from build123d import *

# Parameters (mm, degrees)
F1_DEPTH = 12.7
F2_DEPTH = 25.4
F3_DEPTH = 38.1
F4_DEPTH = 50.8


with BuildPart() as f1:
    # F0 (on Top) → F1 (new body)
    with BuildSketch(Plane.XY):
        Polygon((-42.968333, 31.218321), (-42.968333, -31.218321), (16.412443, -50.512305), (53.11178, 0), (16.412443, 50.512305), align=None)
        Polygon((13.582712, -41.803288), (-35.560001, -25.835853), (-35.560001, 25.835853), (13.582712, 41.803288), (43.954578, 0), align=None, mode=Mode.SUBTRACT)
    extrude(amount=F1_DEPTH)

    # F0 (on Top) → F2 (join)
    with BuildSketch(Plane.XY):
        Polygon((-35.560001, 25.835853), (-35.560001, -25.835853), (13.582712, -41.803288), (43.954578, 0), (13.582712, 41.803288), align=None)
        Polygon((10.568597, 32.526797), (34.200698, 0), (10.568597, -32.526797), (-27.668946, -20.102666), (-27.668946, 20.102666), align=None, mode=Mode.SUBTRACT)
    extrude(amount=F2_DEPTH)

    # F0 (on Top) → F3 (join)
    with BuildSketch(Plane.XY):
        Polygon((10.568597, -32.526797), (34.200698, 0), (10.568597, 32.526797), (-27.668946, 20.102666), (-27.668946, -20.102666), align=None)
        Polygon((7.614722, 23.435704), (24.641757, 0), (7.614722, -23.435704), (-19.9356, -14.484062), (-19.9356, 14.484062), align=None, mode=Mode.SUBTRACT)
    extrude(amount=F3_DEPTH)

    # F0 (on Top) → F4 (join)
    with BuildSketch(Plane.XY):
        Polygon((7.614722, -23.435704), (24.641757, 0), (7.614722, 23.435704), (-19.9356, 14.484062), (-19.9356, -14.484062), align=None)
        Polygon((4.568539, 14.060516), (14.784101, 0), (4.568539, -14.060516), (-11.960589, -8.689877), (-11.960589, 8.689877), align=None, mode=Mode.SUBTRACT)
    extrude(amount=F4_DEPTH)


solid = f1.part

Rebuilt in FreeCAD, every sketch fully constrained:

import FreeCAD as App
import Part
import Sketcher

V = App.Vector
Q = App.Units.Quantity

doc = App.newDocument("Part")
params = doc.addObject("Spreadsheet::Sheet", "Params")
for row, (alias, value) in enumerate([
    ("pad1_length", "0.5 in"),
    ("pad2_length", "1 in"),
    ("pad3_length", "1.5 in"),
    ("pad4_length", "2 in"),
], start=1):
    params.set(f"A{row}", alias)
    params.set(f"B{row}", "=" + value)
    params.setAlias(f"B{row}", alias)

body = doc.addObject("PartDesign::Body", "Body")

# Sketch on XY plane
sketch1 = doc.addObject("Sketcher::SketchObject", "Sketch")
body.addObject(sketch1)
sketch1.AttachmentSupport = (doc.XY_Plane, [""])
sketch1.MapMode = "FlatFace"
sketch1.addGeometry([
    Part.LineSegment(V(-42.968333, 31.218321, 0), V(-42.968333, -31.218321, 0)),  # 0
    Part.LineSegment(V(-42.968333, -31.218321, 0), V(16.412443, -50.512305, 0)),  # 1
    Part.LineSegment(V(16.412443, -50.512305, 0), V(53.11178, 0, 0)),  # 2
    Part.LineSegment(V(53.11178, 0, 0), V(16.412443, 50.512305, 0)),  # 3
    Part.LineSegment(V(16.412443, 50.512305, 0), V(-42.968333, 31.218321, 0)),  # 4
    Part.LineSegment(V(43.954578, 0, 0), V(13.582712, -41.803288, 0)),  # 5
    Part.LineSegment(V(13.582712, -41.803288, 0), V(-35.560001, -25.835853, 0)),  # 6
    Part.LineSegment(V(-35.560001, -25.835853, 0), V(-35.560001, 25.835853, 0)),  # 7
    Part.LineSegment(V(-35.560001, 25.835853, 0), V(13.582712, 41.803288, 0)),  # 8
    Part.LineSegment(V(13.582712, 41.803288, 0), V(43.954578, 0, 0)),  # 9
], False)
sketch1.addConstraint([
    Sketcher.Constraint("Coincident", 0, 2, 1, 1),
    Sketcher.Constraint("Coincident", 1, 2, 2, 1),
    Sketcher.Constraint("Coincident", 2, 2, 3, 1),
    Sketcher.Constraint("Coincident", 3, 2, 4, 1),
    Sketcher.Constraint("Coincident", 4, 2, 0, 1),
    Sketcher.Constraint("Coincident", 5, 2, 6, 1),
    Sketcher.Constraint("Coincident", 6, 2, 7, 1),
    Sketcher.Constraint("Coincident", 7, 2, 8, 1),
    Sketcher.Constraint("Coincident", 8, 2, 9, 1),
    Sketcher.Constraint("Coincident", 9, 2, 5, 1),
    Sketcher.Constraint("Vertical", 0),
    Sketcher.Constraint("Vertical", 7),
    Sketcher.Constraint("Symmetric", 1, 2, 3, 2, -1),
    Sketcher.Constraint("Symmetric", 5, 2, 8, 2, -1),
    Sketcher.Constraint("PointOnObject", 2, 2, -1),
    Sketcher.Constraint("PointOnObject", 9, 2, -1),
    Sketcher.Constraint("Parallel", 2, 5),
    Sketcher.Constraint("Parallel", 1, 6),
    Sketcher.Constraint("Parallel", 4, 8),
    Sketcher.Constraint("Equal", 1, 2),
    Sketcher.Constraint("Equal", 3, 4),
    Sketcher.Constraint("Equal", 5, 6),
    Sketcher.Constraint("Angle", 1, Q("-18 deg")),
    Sketcher.Constraint("Angle", 2, Q("54.000001 deg")),
    Sketcher.Constraint("DistanceX", 6, 2, -1, 1, Q("1.4 in")),
    Sketcher.Constraint("DistanceY", 0, 2, 0, 1, Q("62.436642 mm")),
    Sketcher.Constraint("DistanceY", 7, 1, 7, 2, Q("51.671706 mm")),
    Sketcher.Constraint("DistanceX", -1, 1, 2, 2, Q("53.11178 mm")),
])
pad1 = doc.addObject("PartDesign::Pad", "Pad")
body.addObject(pad1)
pad1.Profile = sketch1
pad1.setExpression("Length", "Params.pad1_length")

# Sketch on XY plane
sketch2 = doc.addObject("Sketcher::SketchObject", "Sketch001")
body.addObject(sketch2)
sketch2.AttachmentSupport = (doc.XY_Plane, [""])
sketch2.MapMode = "FlatFace"
sketch2.addGeometry([
    Part.LineSegment(V(-35.560001, 25.835853, 0), V(-35.560001, -25.835853, 0)),  # 0
    Part.LineSegment(V(-35.560001, -25.835853, 0), V(13.582712, -41.803288, 0)),  # 1
    Part.LineSegment(V(13.582712, -41.803288, 0), V(43.954578, 0, 0)),  # 2
    Part.LineSegment(V(43.954578, 0, 0), V(13.582712, 41.803288, 0)),  # 3
    Part.LineSegment(V(13.582712, 41.803288, 0), V(-35.560001, 25.835853, 0)),  # 4
    Part.LineSegment(V(-27.668946, 20.102666, 0), V(10.568597, 32.526797, 0)),  # 5
    Part.LineSegment(V(10.568597, 32.526797, 0), V(34.200698, 0, 0)),  # 6
    Part.LineSegment(V(34.200698, 0, 0), V(10.568597, -32.526797, 0)),  # 7
    Part.LineSegment(V(10.568597, -32.526797, 0), V(-27.668946, -20.102666, 0)),  # 8
    Part.LineSegment(V(-27.668946, -20.102666, 0), V(-27.668946, 20.102666, 0)),  # 9
], False)
sketch2.addConstraint([
    Sketcher.Constraint("Coincident", 0, 2, 1, 1),
    Sketcher.Constraint("Coincident", 1, 2, 2, 1),
    Sketcher.Constraint("Coincident", 2, 2, 3, 1),
    Sketcher.Constraint("Coincident", 3, 2, 4, 1),
    Sketcher.Constraint("Coincident", 4, 2, 0, 1),
    Sketcher.Constraint("Coincident", 5, 2, 6, 1),
    Sketcher.Constraint("Coincident", 6, 2, 7, 1),
    Sketcher.Constraint("Coincident", 7, 2, 8, 1),
    Sketcher.Constraint("Coincident", 8, 2, 9, 1),
    Sketcher.Constraint("Coincident", 9, 2, 5, 1),
    Sketcher.Constraint("Vertical", 0),
    Sketcher.Constraint("Vertical", 9),
    Sketcher.Constraint("Symmetric", 1, 2, 3, 2, -1),
    Sketcher.Constraint("Symmetric", 5, 2, 7, 2, -1),
    Sketcher.Constraint("PointOnObject", 2, 2, -1),
    Sketcher.Constraint("PointOnObject", 6, 2, -1),
    Sketcher.Constraint("Parallel", 4, 5),
    Sketcher.Constraint("Parallel", 3, 6),
    Sketcher.Constraint("Parallel", 1, 8),
    Sketcher.Constraint("Equal", 1, 2),
    Sketcher.Constraint("Equal", 3, 4),
    Sketcher.Constraint("Equal", 5, 6),
    Sketcher.Constraint("Angle", 1, Q("-18 deg")),
    Sketcher.Constraint("Angle", 2, Q("54 deg")),
    Sketcher.Constraint("DistanceX", 0, 2, -1, 1, Q("1.4 in")),
    Sketcher.Constraint("DistanceX", -1, 1, 6, 2, Q("34.200698 mm")),
    Sketcher.Constraint("DistanceX", 5, 2, 6, 2, Q("23.632101 mm")),
    Sketcher.Constraint("DistanceY", 0, 2, 0, 1, Q("51.671706 mm")),
])
pad2 = doc.addObject("PartDesign::Pad", "Pad001")
body.addObject(pad2)
pad2.Profile = sketch2
pad2.setExpression("Length", "Params.pad2_length")

# Sketch on XY plane
sketch3 = doc.addObject("Sketcher::SketchObject", "Sketch002")
body.addObject(sketch3)
sketch3.AttachmentSupport = (doc.XY_Plane, [""])
sketch3.MapMode = "FlatFace"
sketch3.addGeometry([
    Part.LineSegment(V(10.568597, -32.526797, 0), V(34.200698, 0, 0)),  # 0
    Part.LineSegment(V(34.200698, 0, 0), V(10.568597, 32.526797, 0)),  # 1
    Part.LineSegment(V(10.568597, 32.526797, 0), V(-27.668946, 20.102666, 0)),  # 2
    Part.LineSegment(V(-27.668946, 20.102666, 0), V(-27.668946, -20.102666, 0)),  # 3
    Part.LineSegment(V(-27.668946, -20.102666, 0), V(10.568597, -32.526797, 0)),  # 4
    Part.LineSegment(V(-19.9356, 14.484062, 0), V(7.614722, 23.435704, 0)),  # 5
    Part.LineSegment(V(7.614722, 23.435704, 0), V(24.641757, 0, 0)),  # 6
    Part.LineSegment(V(24.641757, 0, 0), V(7.614722, -23.435704, 0)),  # 7
    Part.LineSegment(V(7.614722, -23.435704, 0), V(-19.9356, -14.484062, 0)),  # 8
    Part.LineSegment(V(-19.9356, -14.484062, 0), V(-19.9356, 14.484062, 0)),  # 9
], False)
sketch3.addConstraint([
    Sketcher.Constraint("Coincident", 0, 2, 1, 1),
    Sketcher.Constraint("Coincident", 1, 2, 2, 1),
    Sketcher.Constraint("Coincident", 2, 2, 3, 1),
    Sketcher.Constraint("Coincident", 3, 2, 4, 1),
    Sketcher.Constraint("Coincident", 4, 2, 0, 1),
    Sketcher.Constraint("Coincident", 5, 2, 6, 1),
    Sketcher.Constraint("Coincident", 6, 2, 7, 1),
    Sketcher.Constraint("Coincident", 7, 2, 8, 1),
    Sketcher.Constraint("Coincident", 8, 2, 9, 1),
    Sketcher.Constraint("Coincident", 9, 2, 5, 1),
    Sketcher.Constraint("Vertical", 3),
    Sketcher.Constraint("Vertical", 9),
    Sketcher.Constraint("Symmetric", 1, 2, 4, 2, -1),
    Sketcher.Constraint("Symmetric", 5, 2, 7, 2, -1),
    Sketcher.Constraint("PointOnObject", 0, 2, -1),
    Sketcher.Constraint("PointOnObject", 6, 2, -1),
    Sketcher.Constraint("Parallel", 2, 5),
    Sketcher.Constraint("Parallel", 1, 6),
    Sketcher.Constraint("Parallel", 4, 8),
    Sketcher.Constraint("Equal", 1, 2),
    Sketcher.Constraint("Equal", 2, 4),
    Sketcher.Constraint("Equal", 5, 6),
    Sketcher.Constraint("Angle", 0, Q("54 deg")),
    Sketcher.Constraint("Angle", 2, Q("-162 deg")),
    Sketcher.Constraint("DistanceX", -1, 1, 0, 2, Q("34.200698 mm")),
    Sketcher.Constraint("DistanceX", 8, 2, -1, 1, Q("19.9356 mm")),
    Sketcher.Constraint("DistanceX", 1, 2, 0, 2, Q("23.632101 mm")),
    Sketcher.Constraint("DistanceY", 4, 2, 5, 2, Q("55.962501 mm")),
])
pad3 = doc.addObject("PartDesign::Pad", "Pad002")
body.addObject(pad3)
pad3.Profile = sketch3
pad3.setExpression("Length", "Params.pad3_length")

# Sketch on XY plane
sketch4 = doc.addObject("Sketcher::SketchObject", "Sketch003")
body.addObject(sketch4)
sketch4.AttachmentSupport = (doc.XY_Plane, [""])
sketch4.MapMode = "FlatFace"
sketch4.addGeometry([
    Part.LineSegment(V(7.614722, -23.435704, 0), V(24.641757, 0, 0)),  # 0
    Part.LineSegment(V(24.641757, 0, 0), V(7.614722, 23.435704, 0)),  # 1
    Part.LineSegment(V(7.614722, 23.435704, 0), V(-19.9356, 14.484062, 0)),  # 2
    Part.LineSegment(V(-19.9356, 14.484062, 0), V(-19.9356, -14.484062, 0)),  # 3
    Part.LineSegment(V(-19.9356, -14.484062, 0), V(7.614722, -23.435704, 0)),  # 4
    Part.LineSegment(V(-11.960589, 8.689877, 0), V(4.568539, 14.060516, 0)),  # 5
    Part.LineSegment(V(4.568539, 14.060516, 0), V(14.784101, 0, 0)),  # 6
    Part.LineSegment(V(14.784101, 0, 0), V(4.568539, -14.060516, 0)),  # 7
    Part.LineSegment(V(4.568539, -14.060516, 0), V(-11.960589, -8.689877, 0)),  # 8
    Part.LineSegment(V(-11.960589, -8.689877, 0), V(-11.960589, 8.689877, 0)),  # 9
], False)
sketch4.addConstraint([
    Sketcher.Constraint("Coincident", 0, 2, 1, 1),
    Sketcher.Constraint("Coincident", 1, 2, 2, 1),
    Sketcher.Constraint("Coincident", 2, 2, 3, 1),
    Sketcher.Constraint("Coincident", 3, 2, 4, 1),
    Sketcher.Constraint("Coincident", 4, 2, 0, 1),
    Sketcher.Constraint("Coincident", 5, 2, 6, 1),
    Sketcher.Constraint("Coincident", 6, 2, 7, 1),
    Sketcher.Constraint("Coincident", 7, 2, 8, 1),
    Sketcher.Constraint("Coincident", 8, 2, 9, 1),
    Sketcher.Constraint("Coincident", 9, 2, 5, 1),
    Sketcher.Constraint("Vertical", 3),
    Sketcher.Constraint("Vertical", 9),
    Sketcher.Constraint("Symmetric", 1, 2, 4, 2, -1),
    Sketcher.Constraint("Symmetric", 5, 2, 7, 2, -1),
    Sketcher.Constraint("PointOnObject", 0, 2, -1),
    Sketcher.Constraint("PointOnObject", 6, 2, -1),
    Sketcher.Constraint("Parallel", 2, 5),
    Sketcher.Constraint("Parallel", 1, 6),
    Sketcher.Constraint("Parallel", 4, 8),
    Sketcher.Constraint("Equal", 1, 2),
    Sketcher.Constraint("Equal", 2, 4),
    Sketcher.Constraint("Equal", 5, 6),
    Sketcher.Constraint("Angle", 0, Q("54.000001 deg")),
    Sketcher.Constraint("Angle", 2, Q("-162 deg")),
    Sketcher.Constraint("DistanceX", 2, 2, -1, 1, Q("19.9356 mm")),
    Sketcher.Constraint("DistanceX", -1, 1, 6, 2, Q("14.784101 mm")),
    Sketcher.Constraint("DistanceY", 3, 2, 3, 1, Q("28.968124 mm")),
    Sketcher.Constraint("DistanceY", 9, 1, 9, 2, Q("17.379754 mm")),
])
pad4 = doc.addObject("PartDesign::Pad", "Pad003")
body.addObject(pad4)
pad4.Profile = sketch4
pad4.setExpression("Length", "Params.pad4_length")

doc.recompute()
